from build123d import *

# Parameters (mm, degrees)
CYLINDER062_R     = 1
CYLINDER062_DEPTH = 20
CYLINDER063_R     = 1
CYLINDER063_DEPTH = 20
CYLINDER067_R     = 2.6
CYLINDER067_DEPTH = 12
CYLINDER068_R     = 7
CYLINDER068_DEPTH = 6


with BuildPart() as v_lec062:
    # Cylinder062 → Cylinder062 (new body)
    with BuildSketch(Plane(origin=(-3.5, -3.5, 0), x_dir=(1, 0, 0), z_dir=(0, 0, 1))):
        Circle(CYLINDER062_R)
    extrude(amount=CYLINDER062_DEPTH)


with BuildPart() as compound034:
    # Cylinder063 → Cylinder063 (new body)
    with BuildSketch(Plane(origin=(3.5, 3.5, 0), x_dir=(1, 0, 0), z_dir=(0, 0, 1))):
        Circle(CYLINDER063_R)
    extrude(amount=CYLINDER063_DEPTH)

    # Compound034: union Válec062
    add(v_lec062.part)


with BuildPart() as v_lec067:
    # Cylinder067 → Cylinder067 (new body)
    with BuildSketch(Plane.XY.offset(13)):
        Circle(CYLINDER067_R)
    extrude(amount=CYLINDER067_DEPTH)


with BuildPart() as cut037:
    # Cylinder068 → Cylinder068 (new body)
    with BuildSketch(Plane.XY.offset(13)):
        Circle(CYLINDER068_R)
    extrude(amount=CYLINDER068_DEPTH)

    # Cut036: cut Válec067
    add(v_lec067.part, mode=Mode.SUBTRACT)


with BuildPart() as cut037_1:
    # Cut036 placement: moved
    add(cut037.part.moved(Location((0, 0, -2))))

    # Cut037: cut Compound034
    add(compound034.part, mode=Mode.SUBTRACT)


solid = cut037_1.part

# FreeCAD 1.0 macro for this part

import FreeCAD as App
import Part
import Sketcher

doc = App.newDocument("Part")
body = doc.addObject("PartDesign::Body", "Body")

# Sketch on XY plane
sketch1 = doc.addObject("Sketcher::SketchObject", "Sketch")
body.addObject(sketch1)
sketch1.AttachmentSupport = (doc.XY_Plane, [""])
sketch1.MapMode = "FlatFace"
sketch1.addGeometry(Part.Circle(App.Vector(-3.5, -3.5, 0), App.Vector(0, 0, 1), 1), False)
sketch1.addConstraint([
    Sketcher.Constraint("Diameter", 0, 2.0),
    Sketcher.Constraint("DistanceX", 0, 3, -1, 1, 3.5),
    Sketcher.Constraint("DistanceY", 0, 3, -1, 1, 3.5),
])
pad1 = doc.addObject("PartDesign::Pad", "Pad")
body.addObject(pad1)
pad1.Profile = sketch1
pad1.Length = 20
body2 = doc.addObject("PartDesign::Body", "Body001")
body2.AllowCompound = True

# Sketch on XY plane
sketch2 = doc.addObject("Sketcher::SketchObject", "Sketch001")
body2.addObject(sketch2)
sketch2.AttachmentSupport = (doc.getObject("XY_Plane001"), [""])
sketch2.MapMode = "FlatFace"
sketch2.addGeometry(Part.Circle(App.Vector(3.5, 3.5, 0), App.Vector(0, 0, 1), 1), False)
sketch2.addConstraint([
    Sketcher.Constraint("Diameter", 0, 2.0),
    Sketcher.Constraint("DistanceX", -1, 1, 0, 3, 3.5),
    Sketcher.Constraint("DistanceY", -1, 1, 0, 3, 3.5),
])
pad2 = doc.addObject("PartDesign::Pad", "Pad001")
body2.addObject(pad2)
pad2.Profile = sketch2
pad2.Length = 20
doc.recompute()

boolean = doc.addObject("PartDesign::Boolean", "Boolean")
body2.addObject(boolean)
boolean.Type = "Fuse"
boolean.addObjects([body])
body3 = doc.addObject("PartDesign::Body", "Body002")

# Sketch on XY plane
sketch3 = doc.addObject("Sketcher::SketchObject", "Sketch002")
body3.addObject(sketch3)
sketch3.AttachmentSupport = (doc.getObject("XY_Plane002"), [""])
sketch3.MapMode = "FlatFace"
sketch3.AttachmentOffset = App.Placement(App.Vector(0, 0, 13), App.Rotation())
sketch3.addGeometry(Part.Circle(App.Vector(0, 0, 0), App.Vector(0, 0, 1), 2.6), False)
sketch3.addConstraint([
    Sketcher.Constraint("Coincident", 0, 3, -1, 1),
    Sketcher.Constraint("Diameter", 0, 5.2),
])
pad3 = doc.addObject("PartDesign::Pad", "Pad002")
body3.addObject(pad3)
pad3.Profile = sketch3
pad3.Length = 12
body4 = doc.addObject("PartDesign::Body", "Body003")

# Sketch on XY plane
sketch4 = doc.addObject("Sketcher::SketchObject", "Sketch003")
body4.addObject(sketch4)
sketch4.AttachmentSupport = (doc.getObject("XY_Plane003"), [""])
sketch4.MapMode = "FlatFace"
sketch4.AttachmentOffset = App.Placement(App.Vector(0, 0, 13), App.Rotation())
sketch4.addGeometry(Part.Circle(App.Vector(0, 0, 0), App.Vector(0, 0, 1), 7), False)
sketch4.addConstraint([
    Sketcher.Constraint("Coincident", 0, 3, -1, 1),
    Sketcher.Constraint("Diameter", 0, 14.0),
])
pad4 = doc.addObject("PartDesign::Pad", "Pad003")
body4.addObject(pad4)
pad4.Profile = sketch4
pad4.Length = 6
doc.recompute()

boolean2 = doc.addObject("PartDesign::Boolean", "Boolean001")
body4.addObject(boolean2)
boolean2.Type = "Cut"
boolean2.addObjects([body3])
body5 = doc.addObject("PartDesign::Body", "Body004")
doc.recompute()

body4.Placement = App.Placement(App.Vector(0, 0, -2), App.Rotation(App.Vector(0, 0, 1), 0))
boolean3 = doc.addObject("PartDesign::Boolean", "Boolean002")
body5.addObject(boolean3)
boolean3.Type = "Fuse"
boolean3.addObjects([body4])
doc.recompute()

boolean4 = doc.addObject("PartDesign::Boolean", "Boolean003")
body5.addObject(boolean4)
boolean4.Type = "Cut"
boolean4.addObjects([body2])

doc.recompute()
